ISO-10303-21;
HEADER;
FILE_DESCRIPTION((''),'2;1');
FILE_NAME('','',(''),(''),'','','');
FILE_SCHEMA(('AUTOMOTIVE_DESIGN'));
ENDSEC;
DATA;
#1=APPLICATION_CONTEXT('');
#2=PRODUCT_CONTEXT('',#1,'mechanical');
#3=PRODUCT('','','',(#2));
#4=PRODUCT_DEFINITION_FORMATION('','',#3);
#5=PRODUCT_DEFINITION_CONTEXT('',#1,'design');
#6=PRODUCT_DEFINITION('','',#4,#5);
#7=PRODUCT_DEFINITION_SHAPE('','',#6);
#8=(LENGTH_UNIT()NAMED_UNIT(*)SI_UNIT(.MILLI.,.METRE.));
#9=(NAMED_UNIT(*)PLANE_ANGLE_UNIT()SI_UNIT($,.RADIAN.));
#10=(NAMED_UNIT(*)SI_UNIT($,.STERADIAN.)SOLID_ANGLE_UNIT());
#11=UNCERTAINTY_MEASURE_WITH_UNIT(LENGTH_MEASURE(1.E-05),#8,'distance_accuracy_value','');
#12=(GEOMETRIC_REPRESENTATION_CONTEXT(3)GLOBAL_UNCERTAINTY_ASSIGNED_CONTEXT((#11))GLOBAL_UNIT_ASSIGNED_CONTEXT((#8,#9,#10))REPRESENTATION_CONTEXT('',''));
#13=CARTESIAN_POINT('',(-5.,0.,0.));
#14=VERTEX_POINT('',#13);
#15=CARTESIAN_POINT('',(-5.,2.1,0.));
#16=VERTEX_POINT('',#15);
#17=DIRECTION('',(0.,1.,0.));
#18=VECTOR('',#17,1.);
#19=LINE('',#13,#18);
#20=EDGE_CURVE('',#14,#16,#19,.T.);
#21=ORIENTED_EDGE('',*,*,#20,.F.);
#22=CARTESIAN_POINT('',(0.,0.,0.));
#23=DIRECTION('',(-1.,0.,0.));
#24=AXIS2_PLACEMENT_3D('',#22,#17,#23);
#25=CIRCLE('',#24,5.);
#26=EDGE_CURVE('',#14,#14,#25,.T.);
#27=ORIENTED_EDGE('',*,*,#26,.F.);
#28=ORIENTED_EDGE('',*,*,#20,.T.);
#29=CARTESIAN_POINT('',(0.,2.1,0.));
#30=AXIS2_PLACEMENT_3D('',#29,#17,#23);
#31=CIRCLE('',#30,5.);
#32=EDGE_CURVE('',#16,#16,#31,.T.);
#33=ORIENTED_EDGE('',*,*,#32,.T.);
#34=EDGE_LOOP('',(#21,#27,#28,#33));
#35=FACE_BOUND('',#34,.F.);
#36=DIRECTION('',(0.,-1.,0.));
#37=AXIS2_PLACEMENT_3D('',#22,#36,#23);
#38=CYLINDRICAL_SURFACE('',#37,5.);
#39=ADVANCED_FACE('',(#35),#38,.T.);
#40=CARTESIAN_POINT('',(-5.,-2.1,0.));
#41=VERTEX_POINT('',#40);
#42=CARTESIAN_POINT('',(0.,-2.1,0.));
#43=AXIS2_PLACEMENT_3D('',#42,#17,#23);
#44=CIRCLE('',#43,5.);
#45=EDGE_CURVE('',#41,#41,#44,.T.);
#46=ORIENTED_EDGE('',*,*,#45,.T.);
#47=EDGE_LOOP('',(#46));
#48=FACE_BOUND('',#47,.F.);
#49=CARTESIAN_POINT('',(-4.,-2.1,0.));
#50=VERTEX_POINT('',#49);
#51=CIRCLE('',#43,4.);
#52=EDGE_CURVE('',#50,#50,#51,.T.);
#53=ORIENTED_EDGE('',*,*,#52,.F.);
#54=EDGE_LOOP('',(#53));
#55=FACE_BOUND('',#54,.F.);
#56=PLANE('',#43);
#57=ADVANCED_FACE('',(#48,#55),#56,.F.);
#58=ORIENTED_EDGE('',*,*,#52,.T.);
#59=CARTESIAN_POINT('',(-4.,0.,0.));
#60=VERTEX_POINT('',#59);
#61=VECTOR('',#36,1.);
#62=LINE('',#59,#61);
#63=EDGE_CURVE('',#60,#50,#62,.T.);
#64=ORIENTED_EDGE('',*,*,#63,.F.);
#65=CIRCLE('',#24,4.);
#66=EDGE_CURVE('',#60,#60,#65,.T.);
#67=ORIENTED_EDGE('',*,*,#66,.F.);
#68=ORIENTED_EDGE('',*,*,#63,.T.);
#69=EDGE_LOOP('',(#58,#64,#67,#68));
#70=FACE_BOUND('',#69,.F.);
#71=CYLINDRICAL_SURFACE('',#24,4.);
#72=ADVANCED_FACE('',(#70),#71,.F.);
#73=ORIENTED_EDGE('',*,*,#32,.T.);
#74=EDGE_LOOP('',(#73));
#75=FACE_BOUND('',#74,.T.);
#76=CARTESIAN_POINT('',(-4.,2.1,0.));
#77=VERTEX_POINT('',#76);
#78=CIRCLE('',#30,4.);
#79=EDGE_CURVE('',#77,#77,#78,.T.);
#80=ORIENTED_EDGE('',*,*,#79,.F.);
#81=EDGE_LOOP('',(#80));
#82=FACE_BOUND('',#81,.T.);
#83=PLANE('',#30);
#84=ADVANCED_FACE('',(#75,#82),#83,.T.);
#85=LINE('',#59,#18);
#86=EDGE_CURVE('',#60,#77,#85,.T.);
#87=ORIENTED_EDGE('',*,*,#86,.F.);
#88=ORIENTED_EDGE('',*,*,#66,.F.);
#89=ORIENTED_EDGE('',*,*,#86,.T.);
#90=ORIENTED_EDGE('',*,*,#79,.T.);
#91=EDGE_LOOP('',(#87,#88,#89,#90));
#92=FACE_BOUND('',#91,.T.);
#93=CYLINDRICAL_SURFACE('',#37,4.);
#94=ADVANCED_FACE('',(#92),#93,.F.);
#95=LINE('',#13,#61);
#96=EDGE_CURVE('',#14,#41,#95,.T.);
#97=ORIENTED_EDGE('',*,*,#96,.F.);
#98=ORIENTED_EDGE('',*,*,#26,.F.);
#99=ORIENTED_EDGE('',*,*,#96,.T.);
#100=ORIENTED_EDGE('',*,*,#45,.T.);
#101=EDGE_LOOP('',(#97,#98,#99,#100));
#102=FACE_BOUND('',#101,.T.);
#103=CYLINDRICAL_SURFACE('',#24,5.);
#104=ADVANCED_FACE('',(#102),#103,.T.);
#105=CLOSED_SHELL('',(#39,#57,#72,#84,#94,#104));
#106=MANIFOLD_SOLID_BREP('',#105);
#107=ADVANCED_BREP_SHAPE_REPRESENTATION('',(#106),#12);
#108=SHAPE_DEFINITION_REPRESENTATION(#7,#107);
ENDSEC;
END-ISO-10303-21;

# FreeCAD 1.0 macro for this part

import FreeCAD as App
import Part
import Sketcher

doc = App.newDocument("Part")
body = doc.addObject("PartDesign::Body", "Body")

# Sketch on XZ plane
sketch1 = body.newObject("Sketcher::SketchObject", "Sketch")
sketch1.AttachmentSupport = (doc.getObject("XZ_Plane"), [""])
sketch1.MapMode = "FlatFace"
sketch1.addGeometry([
    Part.Circle(App.Vector(0, 0, 0), App.Vector(0, 0, 1), 5),
    Part.Circle(App.Vector(0, 0, 0), App.Vector(0, 0, 1), 4),
], False)
sketch1.addConstraint([
    Sketcher.Constraint("Coincident", 0, 3, -1, 1),
    Sketcher.Constraint("Coincident", 1, 3, -1, 1),
    Sketcher.Constraint("Diameter", 0, 10.0),
    Sketcher.Constraint("Diameter", 1, 8.0),
])
pad1 = body.newObject("PartDesign::Pad", "Pad")
pad1.Profile = sketch1
pad1.Length = 4.2
pad1.Midplane = True

doc.recompute()
